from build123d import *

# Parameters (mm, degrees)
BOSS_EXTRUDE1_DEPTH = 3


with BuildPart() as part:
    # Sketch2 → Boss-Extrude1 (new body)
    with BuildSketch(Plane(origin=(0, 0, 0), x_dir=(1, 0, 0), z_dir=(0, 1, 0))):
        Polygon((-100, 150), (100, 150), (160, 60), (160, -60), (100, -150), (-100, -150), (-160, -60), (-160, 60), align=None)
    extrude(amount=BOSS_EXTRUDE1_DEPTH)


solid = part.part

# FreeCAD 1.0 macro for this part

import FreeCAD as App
import Part
import Sketcher


def add_polygon(sketch, points):
    """Adds a closed chain of lines whose ends are joined by coincident constraints."""
    first, n = sketch.GeometryCount, len(points)
    for a, b in zip(points, points[1:] + points[:1]):
        sketch.addGeometry(Part.LineSegment(App.Vector(*a, 0), App.Vector(*b, 0)), False)
    for i in range(n):
        sketch.addConstraint(Sketcher.Constraint("Coincident", first + i, 2, first + (i + 1) % n, 1))

doc = App.newDocument("Part")
body = doc.addObject("PartDesign::Body", "Body")

sketch1 = body.newObject("Sketcher::SketchObject", "Sketch")
sketch1.AttachmentSupport = (doc.getObject("XZ_Plane"), [""])
sketch1.MapMode = "FlatFace"
add_polygon(sketch1, [(100, -150), (-100, -150), (-160, -60), (-160, 60), (-100, 150), (100, 150), (160, 60), (160, -60)])
sketch1.addConstraint([
    Sketcher.Constraint("Horizontal", 0),
    Sketcher.Constraint("Vertical", 2),
    Sketcher.Constraint("Horizontal", 4),
    Sketcher.Constraint("Vertical", 6),
    Sketcher.Constraint("Symmetric", 0, 2, 4, 2, -1, 1),
    Sketcher.Constraint("Symmetric", 1, 2, 5, 2, -1, 1),
    Sketcher.Constraint("Parallel", 3, 7),
    Sketcher.Constraint("Horizontal", 2, 2, 5, 2),
    Sketcher.Constraint("Horizontal", 1, 2, 6, 2),
    Sketcher.Constraint("Vertical", 0, 2, 3, 2),
    Sketcher.Constraint("DistanceX", 0, 2, 0, 1, 200.0),
    Sketcher.Constraint("DistanceY", 2, 1, 2, 2, 120.0),
    Sketcher.Constraint("DistanceY", 0, 2, -1, 1, 150.0),
    Sketcher.Constraint("DistanceX", 1, 2, -1, 1, 160.0),
])
pad1 = body.newObject("PartDesign::Pad", "Pad")
pad1.Profile = sketch1
pad1.Length = 3
pad1.Reversed = True

doc.recompute()
